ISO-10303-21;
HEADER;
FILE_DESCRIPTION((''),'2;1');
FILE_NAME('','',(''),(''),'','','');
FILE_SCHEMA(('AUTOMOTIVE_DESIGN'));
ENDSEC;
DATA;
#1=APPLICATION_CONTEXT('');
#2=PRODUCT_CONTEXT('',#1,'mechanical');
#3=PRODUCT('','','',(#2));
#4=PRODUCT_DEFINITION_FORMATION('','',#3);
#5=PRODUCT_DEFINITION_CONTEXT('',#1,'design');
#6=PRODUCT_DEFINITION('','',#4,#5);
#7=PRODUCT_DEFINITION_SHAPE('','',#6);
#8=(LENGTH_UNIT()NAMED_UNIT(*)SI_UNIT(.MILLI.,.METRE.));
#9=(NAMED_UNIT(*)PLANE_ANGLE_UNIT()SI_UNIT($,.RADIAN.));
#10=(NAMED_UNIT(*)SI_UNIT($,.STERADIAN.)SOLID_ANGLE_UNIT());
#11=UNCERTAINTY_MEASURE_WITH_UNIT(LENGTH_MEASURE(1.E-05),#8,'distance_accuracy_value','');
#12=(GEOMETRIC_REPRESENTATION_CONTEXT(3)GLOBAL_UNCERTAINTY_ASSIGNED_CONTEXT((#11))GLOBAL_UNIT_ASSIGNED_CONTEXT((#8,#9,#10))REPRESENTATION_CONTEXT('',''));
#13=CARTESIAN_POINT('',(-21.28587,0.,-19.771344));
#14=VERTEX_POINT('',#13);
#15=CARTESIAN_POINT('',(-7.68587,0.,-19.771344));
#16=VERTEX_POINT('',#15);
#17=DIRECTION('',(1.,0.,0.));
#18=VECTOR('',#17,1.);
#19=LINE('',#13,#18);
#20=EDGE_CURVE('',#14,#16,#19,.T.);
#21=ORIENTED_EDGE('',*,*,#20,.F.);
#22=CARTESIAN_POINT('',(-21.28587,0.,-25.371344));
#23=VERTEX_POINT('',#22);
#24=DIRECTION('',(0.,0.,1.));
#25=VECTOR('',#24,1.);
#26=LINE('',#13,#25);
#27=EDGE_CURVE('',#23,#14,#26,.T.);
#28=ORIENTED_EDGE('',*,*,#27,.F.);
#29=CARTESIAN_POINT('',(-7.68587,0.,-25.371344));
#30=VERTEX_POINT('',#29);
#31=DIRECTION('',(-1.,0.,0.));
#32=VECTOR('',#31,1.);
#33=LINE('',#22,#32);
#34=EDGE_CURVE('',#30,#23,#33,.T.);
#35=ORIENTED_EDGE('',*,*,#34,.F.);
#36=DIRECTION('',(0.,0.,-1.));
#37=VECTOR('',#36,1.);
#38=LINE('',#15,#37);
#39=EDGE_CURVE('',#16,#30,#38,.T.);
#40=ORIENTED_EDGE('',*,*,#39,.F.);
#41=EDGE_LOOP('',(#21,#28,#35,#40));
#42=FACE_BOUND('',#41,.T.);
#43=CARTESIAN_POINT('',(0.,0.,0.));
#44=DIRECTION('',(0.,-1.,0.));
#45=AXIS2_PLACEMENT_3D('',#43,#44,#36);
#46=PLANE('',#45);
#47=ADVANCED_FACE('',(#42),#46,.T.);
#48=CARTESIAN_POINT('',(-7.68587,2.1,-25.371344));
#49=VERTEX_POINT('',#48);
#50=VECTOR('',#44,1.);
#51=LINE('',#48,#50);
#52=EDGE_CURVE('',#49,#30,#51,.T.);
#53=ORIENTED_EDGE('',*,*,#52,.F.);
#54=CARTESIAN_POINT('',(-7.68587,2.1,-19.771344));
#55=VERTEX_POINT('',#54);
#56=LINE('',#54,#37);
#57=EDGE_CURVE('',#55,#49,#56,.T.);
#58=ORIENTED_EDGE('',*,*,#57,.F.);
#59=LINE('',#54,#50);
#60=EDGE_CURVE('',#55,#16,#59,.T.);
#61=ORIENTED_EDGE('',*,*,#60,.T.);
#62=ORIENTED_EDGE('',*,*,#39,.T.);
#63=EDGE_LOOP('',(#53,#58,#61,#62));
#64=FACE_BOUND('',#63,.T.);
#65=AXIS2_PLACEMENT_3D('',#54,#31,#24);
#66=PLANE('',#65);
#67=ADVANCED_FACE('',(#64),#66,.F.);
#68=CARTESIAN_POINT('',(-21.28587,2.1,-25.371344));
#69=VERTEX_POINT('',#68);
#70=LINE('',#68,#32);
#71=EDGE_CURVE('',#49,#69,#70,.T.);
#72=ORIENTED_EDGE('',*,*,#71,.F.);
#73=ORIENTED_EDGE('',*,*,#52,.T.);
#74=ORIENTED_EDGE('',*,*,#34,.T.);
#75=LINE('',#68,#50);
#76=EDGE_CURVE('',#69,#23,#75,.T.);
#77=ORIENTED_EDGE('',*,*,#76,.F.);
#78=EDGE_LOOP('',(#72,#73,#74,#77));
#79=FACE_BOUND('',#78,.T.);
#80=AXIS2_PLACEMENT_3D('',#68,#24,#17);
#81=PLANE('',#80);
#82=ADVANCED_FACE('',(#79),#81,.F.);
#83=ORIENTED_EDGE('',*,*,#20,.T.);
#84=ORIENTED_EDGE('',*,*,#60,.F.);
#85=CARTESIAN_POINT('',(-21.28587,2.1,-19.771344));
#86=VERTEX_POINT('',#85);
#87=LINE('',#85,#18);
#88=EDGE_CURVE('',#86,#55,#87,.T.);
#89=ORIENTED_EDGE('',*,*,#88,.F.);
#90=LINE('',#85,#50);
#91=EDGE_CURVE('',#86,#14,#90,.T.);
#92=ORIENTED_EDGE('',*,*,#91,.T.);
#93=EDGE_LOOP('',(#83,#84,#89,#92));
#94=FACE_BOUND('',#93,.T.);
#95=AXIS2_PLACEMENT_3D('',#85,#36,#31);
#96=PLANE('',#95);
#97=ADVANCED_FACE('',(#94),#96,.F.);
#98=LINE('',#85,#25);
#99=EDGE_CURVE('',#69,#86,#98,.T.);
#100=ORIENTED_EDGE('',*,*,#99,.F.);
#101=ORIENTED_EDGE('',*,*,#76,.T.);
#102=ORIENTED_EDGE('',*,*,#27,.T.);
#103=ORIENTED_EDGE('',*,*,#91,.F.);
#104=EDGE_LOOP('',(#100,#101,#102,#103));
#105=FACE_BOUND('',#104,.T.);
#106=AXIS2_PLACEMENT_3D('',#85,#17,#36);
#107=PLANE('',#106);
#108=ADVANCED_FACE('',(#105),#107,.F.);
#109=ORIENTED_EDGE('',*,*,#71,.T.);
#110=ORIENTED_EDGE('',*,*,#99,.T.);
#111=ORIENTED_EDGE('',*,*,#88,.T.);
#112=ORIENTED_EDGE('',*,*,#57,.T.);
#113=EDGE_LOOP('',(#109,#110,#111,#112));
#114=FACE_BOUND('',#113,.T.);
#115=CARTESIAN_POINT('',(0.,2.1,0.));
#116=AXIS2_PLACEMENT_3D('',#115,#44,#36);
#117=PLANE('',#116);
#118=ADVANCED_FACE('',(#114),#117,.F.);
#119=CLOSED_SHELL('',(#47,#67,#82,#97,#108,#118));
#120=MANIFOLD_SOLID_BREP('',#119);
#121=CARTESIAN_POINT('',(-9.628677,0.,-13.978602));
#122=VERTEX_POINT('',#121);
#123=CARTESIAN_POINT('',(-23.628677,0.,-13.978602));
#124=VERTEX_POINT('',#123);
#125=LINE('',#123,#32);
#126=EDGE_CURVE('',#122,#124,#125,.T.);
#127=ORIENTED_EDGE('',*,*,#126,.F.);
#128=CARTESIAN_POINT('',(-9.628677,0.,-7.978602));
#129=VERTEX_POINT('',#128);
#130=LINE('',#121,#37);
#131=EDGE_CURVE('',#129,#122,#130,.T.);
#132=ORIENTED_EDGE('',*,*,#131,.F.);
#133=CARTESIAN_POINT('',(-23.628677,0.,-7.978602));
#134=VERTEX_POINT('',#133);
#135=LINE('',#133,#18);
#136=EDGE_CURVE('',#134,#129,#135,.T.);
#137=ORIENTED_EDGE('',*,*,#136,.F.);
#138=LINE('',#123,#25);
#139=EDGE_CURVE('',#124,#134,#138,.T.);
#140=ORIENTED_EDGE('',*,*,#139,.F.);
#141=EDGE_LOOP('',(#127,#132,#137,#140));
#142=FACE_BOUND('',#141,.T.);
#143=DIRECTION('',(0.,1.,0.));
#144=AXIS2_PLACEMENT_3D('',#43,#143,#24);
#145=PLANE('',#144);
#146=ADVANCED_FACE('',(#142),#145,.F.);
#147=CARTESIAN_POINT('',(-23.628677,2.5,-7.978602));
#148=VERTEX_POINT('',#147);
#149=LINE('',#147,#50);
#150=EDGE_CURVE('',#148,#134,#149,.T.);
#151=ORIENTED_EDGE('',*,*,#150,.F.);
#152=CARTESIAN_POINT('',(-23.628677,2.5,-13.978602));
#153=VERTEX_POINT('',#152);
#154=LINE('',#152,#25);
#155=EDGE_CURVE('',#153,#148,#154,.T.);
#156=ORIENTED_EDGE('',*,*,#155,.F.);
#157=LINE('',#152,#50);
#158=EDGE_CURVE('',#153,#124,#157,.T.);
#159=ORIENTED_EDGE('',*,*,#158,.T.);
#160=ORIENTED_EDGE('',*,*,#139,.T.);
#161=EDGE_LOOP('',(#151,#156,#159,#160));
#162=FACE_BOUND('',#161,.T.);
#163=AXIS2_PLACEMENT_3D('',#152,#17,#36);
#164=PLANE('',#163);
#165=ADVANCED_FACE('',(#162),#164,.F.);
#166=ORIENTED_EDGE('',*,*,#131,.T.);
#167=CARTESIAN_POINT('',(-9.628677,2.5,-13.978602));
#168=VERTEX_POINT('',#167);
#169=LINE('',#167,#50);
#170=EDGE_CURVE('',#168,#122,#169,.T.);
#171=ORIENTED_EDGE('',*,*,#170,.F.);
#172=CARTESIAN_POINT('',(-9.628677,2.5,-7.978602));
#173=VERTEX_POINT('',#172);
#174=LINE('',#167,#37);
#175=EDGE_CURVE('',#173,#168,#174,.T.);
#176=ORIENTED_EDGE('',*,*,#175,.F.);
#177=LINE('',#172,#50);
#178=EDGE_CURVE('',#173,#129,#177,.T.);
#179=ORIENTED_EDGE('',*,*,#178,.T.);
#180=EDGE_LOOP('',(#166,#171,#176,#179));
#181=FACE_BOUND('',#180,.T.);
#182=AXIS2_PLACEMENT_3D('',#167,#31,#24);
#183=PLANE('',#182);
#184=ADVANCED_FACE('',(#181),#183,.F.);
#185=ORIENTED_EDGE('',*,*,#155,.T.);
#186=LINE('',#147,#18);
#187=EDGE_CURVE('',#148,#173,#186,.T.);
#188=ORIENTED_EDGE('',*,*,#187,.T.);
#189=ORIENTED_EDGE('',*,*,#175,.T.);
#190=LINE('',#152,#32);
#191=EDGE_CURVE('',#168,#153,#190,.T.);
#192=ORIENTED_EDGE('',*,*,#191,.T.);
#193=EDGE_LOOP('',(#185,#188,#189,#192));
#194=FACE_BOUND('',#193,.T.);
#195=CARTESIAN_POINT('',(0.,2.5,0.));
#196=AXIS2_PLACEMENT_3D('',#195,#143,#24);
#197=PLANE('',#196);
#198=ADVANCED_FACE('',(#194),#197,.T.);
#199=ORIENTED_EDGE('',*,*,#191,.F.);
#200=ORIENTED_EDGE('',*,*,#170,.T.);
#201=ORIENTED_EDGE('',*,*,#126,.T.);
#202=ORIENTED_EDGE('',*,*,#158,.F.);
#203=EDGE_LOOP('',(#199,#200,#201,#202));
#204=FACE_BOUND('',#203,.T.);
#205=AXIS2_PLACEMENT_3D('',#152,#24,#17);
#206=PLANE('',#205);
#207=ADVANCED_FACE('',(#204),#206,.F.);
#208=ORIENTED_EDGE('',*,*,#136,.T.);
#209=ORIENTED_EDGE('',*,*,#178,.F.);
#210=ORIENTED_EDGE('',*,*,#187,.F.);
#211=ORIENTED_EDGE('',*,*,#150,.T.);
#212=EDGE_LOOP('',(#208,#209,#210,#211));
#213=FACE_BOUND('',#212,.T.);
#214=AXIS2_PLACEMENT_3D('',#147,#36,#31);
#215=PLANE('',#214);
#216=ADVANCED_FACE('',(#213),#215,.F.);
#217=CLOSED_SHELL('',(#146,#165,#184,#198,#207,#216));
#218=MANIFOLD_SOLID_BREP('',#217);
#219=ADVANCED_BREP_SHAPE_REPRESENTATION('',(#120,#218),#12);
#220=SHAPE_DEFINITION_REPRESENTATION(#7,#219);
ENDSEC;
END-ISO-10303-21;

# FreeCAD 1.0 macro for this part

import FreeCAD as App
import Part
import Sketcher

V = App.Vector


def add_polygon(sketch, points):
    """Adds a closed chain of lines whose ends are joined by coincident constraints."""
    first, n = sketch.GeometryCount, len(points)
    for a, b in zip(points, points[1:] + points[:1]):
        sketch.addGeometry(Part.LineSegment(App.Vector(*a, 0), App.Vector(*b, 0)), False)
    for i in range(n):
        sketch.addConstraint(Sketcher.Constraint("Coincident", first + i, 2, first + (i + 1) % n, 1))

doc = App.newDocument("Part")
body = doc.addObject("PartDesign::Body", "Body")

# Sketch on XZ plane
sketch1 = body.newObject("Sketcher::SketchObject", "Sketch")
sketch1.AttachmentSupport = (doc.getObject("XZ_Plane"), [""])
sketch1.MapMode = "FlatFace"
add_polygon(sketch1, [(-24, -14), (-24, -8), (-10, -8), (-10, -14)])  # lines 0-3
sketch1.addConstraint([
    Sketcher.Constraint("Vertical", 0),
    Sketcher.Constraint("Horizontal", 1),
    Sketcher.Constraint("Vertical", 2),
    Sketcher.Constraint("Horizontal", 3),
    Sketcher.Constraint("DistanceX", 1, 1, 1, 2, 14.0),
    Sketcher.Constraint("DistanceY", 0, 1, 0, 2, 6.0),
    Sketcher.Constraint("DistanceY", 0, 2, -1, 1, 7.978602),
    Sketcher.Constraint("DistanceX", 0, 2, -1, 1, 23.628677),
])
pad1 = body.newObject("PartDesign::Pad", "Pad")
pad1.Profile = sketch1
pad1.Length = 2.5
pad1.Reversed = True
body2 = doc.addObject("PartDesign::Body", "Body001")

# Sketch on XZ plane
sketch2 = body2.newObject("Sketcher::SketchObject", "Sketch001")
sketch2.AttachmentSupport = (doc.getObject("XZ_Plane001"), [""])
sketch2.MapMode = "FlatFace"
add_polygon(sketch2, [(-21, -25), (-21, -20), (-8, -20), (-8, -25)])  # lines 0-3
sketch2.addConstraint([
    Sketcher.Constraint("Vertical", 0),
    Sketcher.Constraint("Horizontal", 1),
    Sketcher.Constraint("Vertical", 2),
    Sketcher.Constraint("Horizontal", 3),
    Sketcher.Constraint("DistanceX", 1, 1, 1, 2, 13.6),
    Sketcher.Constraint("DistanceY", 0, 1, 0, 2, 5.6),
    Sketcher.Constraint("DistanceX", 0, 2, -1, 1, 21.28587),
    Sketcher.Constraint("DistanceY", 0, 2, -1, 1, 19.771344),
])
pad2 = body2.newObject("PartDesign::Pad", "Pad001")
pad2.Profile = sketch2
pad2.Length = 2.1
pad2.Reversed = True

doc.recompute()
